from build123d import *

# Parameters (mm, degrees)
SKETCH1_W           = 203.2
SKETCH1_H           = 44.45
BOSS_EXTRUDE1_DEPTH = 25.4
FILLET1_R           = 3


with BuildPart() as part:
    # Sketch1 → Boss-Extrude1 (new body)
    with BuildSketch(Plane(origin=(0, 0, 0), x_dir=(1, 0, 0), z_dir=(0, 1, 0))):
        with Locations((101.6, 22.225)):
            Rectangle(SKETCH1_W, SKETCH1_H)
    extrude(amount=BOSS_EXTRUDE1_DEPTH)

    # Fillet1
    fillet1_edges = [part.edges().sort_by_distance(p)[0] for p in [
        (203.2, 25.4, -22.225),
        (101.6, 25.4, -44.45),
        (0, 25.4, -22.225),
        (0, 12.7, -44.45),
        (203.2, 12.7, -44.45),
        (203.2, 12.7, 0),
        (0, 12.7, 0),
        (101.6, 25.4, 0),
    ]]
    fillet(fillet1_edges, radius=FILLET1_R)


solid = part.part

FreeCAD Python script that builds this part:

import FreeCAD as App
import Part
import Sketcher
Q = App.Units.Quantity


def edges_at(feature, points):
    """Names of the edges that pass closest to the given points."""
    edges = feature.Shape.Edges
    near = lambda p: min(range(len(edges)), key=lambda i: edges[i].distToShape(Part.Vertex(*p))[0])
    return sorted({f"Edge{near(p) + 1}" for p in points})


def add_polygon(sketch, points):
    """Adds a closed chain of lines whose ends are joined by coincident constraints."""
    first, n = sketch.GeometryCount, len(points)
    for a, b in zip(points, points[1:] + points[:1]):
        sketch.addGeometry(Part.LineSegment(App.Vector(*a, 0), App.Vector(*b, 0)), False)
    for i in range(n):
        sketch.addConstraint(Sketcher.Constraint("Coincident", first + i, 2, first + (i + 1) % n, 1))

doc = App.newDocument("Part")
body = doc.addObject("PartDesign::Body", "Body")

# Sketch on XZ plane
sketch1 = body.newObject("Sketcher::SketchObject", "Sketch")
sketch1.AttachmentSupport = (doc.getObject("XZ_Plane"), [""])
sketch1.MapMode = "FlatFace"
add_polygon(sketch1, [(0, -44), (0, 0), (203, 0), (203, -44)])  # lines 0-3
sketch1.addConstraint([
    Sketcher.Constraint("Vertical", 0),
    Sketcher.Constraint("Horizontal", 1),
    Sketcher.Constraint("Vertical", 2),
    Sketcher.Constraint("Horizontal", 3),
    Sketcher.Constraint("Coincident", 0, 2, -1, 1),
    Sketcher.Constraint("DistanceX", 1, 1, 1, 2, Q("8 in")),
    Sketcher.Constraint("DistanceY", 0, 1, 0, 2, Q("1.75 in")),
])
pad1 = body.newObject("PartDesign::Pad", "Pad")
pad1.Profile = sketch1
pad1.Length = Q("1 in")
pad1.Reversed = True
doc.recompute()

fillet = body.newObject("PartDesign::Fillet", "Fillet")
fillet.Base = (pad1, edges_at(pad1, [
    (203.2, 25.4, -22.225),
    (101.6, 25.4, -44.45),
    (0, 25.4, -22.225),
    (0, 12.7, -44.45),
    (203.2, 12.7, -44.45),
    (203.2, 12.7, 0),
    (0, 12.7, 0),
    (101.6, 25.4, 0),
]))
fillet.Radius = 3

doc.recompute()
